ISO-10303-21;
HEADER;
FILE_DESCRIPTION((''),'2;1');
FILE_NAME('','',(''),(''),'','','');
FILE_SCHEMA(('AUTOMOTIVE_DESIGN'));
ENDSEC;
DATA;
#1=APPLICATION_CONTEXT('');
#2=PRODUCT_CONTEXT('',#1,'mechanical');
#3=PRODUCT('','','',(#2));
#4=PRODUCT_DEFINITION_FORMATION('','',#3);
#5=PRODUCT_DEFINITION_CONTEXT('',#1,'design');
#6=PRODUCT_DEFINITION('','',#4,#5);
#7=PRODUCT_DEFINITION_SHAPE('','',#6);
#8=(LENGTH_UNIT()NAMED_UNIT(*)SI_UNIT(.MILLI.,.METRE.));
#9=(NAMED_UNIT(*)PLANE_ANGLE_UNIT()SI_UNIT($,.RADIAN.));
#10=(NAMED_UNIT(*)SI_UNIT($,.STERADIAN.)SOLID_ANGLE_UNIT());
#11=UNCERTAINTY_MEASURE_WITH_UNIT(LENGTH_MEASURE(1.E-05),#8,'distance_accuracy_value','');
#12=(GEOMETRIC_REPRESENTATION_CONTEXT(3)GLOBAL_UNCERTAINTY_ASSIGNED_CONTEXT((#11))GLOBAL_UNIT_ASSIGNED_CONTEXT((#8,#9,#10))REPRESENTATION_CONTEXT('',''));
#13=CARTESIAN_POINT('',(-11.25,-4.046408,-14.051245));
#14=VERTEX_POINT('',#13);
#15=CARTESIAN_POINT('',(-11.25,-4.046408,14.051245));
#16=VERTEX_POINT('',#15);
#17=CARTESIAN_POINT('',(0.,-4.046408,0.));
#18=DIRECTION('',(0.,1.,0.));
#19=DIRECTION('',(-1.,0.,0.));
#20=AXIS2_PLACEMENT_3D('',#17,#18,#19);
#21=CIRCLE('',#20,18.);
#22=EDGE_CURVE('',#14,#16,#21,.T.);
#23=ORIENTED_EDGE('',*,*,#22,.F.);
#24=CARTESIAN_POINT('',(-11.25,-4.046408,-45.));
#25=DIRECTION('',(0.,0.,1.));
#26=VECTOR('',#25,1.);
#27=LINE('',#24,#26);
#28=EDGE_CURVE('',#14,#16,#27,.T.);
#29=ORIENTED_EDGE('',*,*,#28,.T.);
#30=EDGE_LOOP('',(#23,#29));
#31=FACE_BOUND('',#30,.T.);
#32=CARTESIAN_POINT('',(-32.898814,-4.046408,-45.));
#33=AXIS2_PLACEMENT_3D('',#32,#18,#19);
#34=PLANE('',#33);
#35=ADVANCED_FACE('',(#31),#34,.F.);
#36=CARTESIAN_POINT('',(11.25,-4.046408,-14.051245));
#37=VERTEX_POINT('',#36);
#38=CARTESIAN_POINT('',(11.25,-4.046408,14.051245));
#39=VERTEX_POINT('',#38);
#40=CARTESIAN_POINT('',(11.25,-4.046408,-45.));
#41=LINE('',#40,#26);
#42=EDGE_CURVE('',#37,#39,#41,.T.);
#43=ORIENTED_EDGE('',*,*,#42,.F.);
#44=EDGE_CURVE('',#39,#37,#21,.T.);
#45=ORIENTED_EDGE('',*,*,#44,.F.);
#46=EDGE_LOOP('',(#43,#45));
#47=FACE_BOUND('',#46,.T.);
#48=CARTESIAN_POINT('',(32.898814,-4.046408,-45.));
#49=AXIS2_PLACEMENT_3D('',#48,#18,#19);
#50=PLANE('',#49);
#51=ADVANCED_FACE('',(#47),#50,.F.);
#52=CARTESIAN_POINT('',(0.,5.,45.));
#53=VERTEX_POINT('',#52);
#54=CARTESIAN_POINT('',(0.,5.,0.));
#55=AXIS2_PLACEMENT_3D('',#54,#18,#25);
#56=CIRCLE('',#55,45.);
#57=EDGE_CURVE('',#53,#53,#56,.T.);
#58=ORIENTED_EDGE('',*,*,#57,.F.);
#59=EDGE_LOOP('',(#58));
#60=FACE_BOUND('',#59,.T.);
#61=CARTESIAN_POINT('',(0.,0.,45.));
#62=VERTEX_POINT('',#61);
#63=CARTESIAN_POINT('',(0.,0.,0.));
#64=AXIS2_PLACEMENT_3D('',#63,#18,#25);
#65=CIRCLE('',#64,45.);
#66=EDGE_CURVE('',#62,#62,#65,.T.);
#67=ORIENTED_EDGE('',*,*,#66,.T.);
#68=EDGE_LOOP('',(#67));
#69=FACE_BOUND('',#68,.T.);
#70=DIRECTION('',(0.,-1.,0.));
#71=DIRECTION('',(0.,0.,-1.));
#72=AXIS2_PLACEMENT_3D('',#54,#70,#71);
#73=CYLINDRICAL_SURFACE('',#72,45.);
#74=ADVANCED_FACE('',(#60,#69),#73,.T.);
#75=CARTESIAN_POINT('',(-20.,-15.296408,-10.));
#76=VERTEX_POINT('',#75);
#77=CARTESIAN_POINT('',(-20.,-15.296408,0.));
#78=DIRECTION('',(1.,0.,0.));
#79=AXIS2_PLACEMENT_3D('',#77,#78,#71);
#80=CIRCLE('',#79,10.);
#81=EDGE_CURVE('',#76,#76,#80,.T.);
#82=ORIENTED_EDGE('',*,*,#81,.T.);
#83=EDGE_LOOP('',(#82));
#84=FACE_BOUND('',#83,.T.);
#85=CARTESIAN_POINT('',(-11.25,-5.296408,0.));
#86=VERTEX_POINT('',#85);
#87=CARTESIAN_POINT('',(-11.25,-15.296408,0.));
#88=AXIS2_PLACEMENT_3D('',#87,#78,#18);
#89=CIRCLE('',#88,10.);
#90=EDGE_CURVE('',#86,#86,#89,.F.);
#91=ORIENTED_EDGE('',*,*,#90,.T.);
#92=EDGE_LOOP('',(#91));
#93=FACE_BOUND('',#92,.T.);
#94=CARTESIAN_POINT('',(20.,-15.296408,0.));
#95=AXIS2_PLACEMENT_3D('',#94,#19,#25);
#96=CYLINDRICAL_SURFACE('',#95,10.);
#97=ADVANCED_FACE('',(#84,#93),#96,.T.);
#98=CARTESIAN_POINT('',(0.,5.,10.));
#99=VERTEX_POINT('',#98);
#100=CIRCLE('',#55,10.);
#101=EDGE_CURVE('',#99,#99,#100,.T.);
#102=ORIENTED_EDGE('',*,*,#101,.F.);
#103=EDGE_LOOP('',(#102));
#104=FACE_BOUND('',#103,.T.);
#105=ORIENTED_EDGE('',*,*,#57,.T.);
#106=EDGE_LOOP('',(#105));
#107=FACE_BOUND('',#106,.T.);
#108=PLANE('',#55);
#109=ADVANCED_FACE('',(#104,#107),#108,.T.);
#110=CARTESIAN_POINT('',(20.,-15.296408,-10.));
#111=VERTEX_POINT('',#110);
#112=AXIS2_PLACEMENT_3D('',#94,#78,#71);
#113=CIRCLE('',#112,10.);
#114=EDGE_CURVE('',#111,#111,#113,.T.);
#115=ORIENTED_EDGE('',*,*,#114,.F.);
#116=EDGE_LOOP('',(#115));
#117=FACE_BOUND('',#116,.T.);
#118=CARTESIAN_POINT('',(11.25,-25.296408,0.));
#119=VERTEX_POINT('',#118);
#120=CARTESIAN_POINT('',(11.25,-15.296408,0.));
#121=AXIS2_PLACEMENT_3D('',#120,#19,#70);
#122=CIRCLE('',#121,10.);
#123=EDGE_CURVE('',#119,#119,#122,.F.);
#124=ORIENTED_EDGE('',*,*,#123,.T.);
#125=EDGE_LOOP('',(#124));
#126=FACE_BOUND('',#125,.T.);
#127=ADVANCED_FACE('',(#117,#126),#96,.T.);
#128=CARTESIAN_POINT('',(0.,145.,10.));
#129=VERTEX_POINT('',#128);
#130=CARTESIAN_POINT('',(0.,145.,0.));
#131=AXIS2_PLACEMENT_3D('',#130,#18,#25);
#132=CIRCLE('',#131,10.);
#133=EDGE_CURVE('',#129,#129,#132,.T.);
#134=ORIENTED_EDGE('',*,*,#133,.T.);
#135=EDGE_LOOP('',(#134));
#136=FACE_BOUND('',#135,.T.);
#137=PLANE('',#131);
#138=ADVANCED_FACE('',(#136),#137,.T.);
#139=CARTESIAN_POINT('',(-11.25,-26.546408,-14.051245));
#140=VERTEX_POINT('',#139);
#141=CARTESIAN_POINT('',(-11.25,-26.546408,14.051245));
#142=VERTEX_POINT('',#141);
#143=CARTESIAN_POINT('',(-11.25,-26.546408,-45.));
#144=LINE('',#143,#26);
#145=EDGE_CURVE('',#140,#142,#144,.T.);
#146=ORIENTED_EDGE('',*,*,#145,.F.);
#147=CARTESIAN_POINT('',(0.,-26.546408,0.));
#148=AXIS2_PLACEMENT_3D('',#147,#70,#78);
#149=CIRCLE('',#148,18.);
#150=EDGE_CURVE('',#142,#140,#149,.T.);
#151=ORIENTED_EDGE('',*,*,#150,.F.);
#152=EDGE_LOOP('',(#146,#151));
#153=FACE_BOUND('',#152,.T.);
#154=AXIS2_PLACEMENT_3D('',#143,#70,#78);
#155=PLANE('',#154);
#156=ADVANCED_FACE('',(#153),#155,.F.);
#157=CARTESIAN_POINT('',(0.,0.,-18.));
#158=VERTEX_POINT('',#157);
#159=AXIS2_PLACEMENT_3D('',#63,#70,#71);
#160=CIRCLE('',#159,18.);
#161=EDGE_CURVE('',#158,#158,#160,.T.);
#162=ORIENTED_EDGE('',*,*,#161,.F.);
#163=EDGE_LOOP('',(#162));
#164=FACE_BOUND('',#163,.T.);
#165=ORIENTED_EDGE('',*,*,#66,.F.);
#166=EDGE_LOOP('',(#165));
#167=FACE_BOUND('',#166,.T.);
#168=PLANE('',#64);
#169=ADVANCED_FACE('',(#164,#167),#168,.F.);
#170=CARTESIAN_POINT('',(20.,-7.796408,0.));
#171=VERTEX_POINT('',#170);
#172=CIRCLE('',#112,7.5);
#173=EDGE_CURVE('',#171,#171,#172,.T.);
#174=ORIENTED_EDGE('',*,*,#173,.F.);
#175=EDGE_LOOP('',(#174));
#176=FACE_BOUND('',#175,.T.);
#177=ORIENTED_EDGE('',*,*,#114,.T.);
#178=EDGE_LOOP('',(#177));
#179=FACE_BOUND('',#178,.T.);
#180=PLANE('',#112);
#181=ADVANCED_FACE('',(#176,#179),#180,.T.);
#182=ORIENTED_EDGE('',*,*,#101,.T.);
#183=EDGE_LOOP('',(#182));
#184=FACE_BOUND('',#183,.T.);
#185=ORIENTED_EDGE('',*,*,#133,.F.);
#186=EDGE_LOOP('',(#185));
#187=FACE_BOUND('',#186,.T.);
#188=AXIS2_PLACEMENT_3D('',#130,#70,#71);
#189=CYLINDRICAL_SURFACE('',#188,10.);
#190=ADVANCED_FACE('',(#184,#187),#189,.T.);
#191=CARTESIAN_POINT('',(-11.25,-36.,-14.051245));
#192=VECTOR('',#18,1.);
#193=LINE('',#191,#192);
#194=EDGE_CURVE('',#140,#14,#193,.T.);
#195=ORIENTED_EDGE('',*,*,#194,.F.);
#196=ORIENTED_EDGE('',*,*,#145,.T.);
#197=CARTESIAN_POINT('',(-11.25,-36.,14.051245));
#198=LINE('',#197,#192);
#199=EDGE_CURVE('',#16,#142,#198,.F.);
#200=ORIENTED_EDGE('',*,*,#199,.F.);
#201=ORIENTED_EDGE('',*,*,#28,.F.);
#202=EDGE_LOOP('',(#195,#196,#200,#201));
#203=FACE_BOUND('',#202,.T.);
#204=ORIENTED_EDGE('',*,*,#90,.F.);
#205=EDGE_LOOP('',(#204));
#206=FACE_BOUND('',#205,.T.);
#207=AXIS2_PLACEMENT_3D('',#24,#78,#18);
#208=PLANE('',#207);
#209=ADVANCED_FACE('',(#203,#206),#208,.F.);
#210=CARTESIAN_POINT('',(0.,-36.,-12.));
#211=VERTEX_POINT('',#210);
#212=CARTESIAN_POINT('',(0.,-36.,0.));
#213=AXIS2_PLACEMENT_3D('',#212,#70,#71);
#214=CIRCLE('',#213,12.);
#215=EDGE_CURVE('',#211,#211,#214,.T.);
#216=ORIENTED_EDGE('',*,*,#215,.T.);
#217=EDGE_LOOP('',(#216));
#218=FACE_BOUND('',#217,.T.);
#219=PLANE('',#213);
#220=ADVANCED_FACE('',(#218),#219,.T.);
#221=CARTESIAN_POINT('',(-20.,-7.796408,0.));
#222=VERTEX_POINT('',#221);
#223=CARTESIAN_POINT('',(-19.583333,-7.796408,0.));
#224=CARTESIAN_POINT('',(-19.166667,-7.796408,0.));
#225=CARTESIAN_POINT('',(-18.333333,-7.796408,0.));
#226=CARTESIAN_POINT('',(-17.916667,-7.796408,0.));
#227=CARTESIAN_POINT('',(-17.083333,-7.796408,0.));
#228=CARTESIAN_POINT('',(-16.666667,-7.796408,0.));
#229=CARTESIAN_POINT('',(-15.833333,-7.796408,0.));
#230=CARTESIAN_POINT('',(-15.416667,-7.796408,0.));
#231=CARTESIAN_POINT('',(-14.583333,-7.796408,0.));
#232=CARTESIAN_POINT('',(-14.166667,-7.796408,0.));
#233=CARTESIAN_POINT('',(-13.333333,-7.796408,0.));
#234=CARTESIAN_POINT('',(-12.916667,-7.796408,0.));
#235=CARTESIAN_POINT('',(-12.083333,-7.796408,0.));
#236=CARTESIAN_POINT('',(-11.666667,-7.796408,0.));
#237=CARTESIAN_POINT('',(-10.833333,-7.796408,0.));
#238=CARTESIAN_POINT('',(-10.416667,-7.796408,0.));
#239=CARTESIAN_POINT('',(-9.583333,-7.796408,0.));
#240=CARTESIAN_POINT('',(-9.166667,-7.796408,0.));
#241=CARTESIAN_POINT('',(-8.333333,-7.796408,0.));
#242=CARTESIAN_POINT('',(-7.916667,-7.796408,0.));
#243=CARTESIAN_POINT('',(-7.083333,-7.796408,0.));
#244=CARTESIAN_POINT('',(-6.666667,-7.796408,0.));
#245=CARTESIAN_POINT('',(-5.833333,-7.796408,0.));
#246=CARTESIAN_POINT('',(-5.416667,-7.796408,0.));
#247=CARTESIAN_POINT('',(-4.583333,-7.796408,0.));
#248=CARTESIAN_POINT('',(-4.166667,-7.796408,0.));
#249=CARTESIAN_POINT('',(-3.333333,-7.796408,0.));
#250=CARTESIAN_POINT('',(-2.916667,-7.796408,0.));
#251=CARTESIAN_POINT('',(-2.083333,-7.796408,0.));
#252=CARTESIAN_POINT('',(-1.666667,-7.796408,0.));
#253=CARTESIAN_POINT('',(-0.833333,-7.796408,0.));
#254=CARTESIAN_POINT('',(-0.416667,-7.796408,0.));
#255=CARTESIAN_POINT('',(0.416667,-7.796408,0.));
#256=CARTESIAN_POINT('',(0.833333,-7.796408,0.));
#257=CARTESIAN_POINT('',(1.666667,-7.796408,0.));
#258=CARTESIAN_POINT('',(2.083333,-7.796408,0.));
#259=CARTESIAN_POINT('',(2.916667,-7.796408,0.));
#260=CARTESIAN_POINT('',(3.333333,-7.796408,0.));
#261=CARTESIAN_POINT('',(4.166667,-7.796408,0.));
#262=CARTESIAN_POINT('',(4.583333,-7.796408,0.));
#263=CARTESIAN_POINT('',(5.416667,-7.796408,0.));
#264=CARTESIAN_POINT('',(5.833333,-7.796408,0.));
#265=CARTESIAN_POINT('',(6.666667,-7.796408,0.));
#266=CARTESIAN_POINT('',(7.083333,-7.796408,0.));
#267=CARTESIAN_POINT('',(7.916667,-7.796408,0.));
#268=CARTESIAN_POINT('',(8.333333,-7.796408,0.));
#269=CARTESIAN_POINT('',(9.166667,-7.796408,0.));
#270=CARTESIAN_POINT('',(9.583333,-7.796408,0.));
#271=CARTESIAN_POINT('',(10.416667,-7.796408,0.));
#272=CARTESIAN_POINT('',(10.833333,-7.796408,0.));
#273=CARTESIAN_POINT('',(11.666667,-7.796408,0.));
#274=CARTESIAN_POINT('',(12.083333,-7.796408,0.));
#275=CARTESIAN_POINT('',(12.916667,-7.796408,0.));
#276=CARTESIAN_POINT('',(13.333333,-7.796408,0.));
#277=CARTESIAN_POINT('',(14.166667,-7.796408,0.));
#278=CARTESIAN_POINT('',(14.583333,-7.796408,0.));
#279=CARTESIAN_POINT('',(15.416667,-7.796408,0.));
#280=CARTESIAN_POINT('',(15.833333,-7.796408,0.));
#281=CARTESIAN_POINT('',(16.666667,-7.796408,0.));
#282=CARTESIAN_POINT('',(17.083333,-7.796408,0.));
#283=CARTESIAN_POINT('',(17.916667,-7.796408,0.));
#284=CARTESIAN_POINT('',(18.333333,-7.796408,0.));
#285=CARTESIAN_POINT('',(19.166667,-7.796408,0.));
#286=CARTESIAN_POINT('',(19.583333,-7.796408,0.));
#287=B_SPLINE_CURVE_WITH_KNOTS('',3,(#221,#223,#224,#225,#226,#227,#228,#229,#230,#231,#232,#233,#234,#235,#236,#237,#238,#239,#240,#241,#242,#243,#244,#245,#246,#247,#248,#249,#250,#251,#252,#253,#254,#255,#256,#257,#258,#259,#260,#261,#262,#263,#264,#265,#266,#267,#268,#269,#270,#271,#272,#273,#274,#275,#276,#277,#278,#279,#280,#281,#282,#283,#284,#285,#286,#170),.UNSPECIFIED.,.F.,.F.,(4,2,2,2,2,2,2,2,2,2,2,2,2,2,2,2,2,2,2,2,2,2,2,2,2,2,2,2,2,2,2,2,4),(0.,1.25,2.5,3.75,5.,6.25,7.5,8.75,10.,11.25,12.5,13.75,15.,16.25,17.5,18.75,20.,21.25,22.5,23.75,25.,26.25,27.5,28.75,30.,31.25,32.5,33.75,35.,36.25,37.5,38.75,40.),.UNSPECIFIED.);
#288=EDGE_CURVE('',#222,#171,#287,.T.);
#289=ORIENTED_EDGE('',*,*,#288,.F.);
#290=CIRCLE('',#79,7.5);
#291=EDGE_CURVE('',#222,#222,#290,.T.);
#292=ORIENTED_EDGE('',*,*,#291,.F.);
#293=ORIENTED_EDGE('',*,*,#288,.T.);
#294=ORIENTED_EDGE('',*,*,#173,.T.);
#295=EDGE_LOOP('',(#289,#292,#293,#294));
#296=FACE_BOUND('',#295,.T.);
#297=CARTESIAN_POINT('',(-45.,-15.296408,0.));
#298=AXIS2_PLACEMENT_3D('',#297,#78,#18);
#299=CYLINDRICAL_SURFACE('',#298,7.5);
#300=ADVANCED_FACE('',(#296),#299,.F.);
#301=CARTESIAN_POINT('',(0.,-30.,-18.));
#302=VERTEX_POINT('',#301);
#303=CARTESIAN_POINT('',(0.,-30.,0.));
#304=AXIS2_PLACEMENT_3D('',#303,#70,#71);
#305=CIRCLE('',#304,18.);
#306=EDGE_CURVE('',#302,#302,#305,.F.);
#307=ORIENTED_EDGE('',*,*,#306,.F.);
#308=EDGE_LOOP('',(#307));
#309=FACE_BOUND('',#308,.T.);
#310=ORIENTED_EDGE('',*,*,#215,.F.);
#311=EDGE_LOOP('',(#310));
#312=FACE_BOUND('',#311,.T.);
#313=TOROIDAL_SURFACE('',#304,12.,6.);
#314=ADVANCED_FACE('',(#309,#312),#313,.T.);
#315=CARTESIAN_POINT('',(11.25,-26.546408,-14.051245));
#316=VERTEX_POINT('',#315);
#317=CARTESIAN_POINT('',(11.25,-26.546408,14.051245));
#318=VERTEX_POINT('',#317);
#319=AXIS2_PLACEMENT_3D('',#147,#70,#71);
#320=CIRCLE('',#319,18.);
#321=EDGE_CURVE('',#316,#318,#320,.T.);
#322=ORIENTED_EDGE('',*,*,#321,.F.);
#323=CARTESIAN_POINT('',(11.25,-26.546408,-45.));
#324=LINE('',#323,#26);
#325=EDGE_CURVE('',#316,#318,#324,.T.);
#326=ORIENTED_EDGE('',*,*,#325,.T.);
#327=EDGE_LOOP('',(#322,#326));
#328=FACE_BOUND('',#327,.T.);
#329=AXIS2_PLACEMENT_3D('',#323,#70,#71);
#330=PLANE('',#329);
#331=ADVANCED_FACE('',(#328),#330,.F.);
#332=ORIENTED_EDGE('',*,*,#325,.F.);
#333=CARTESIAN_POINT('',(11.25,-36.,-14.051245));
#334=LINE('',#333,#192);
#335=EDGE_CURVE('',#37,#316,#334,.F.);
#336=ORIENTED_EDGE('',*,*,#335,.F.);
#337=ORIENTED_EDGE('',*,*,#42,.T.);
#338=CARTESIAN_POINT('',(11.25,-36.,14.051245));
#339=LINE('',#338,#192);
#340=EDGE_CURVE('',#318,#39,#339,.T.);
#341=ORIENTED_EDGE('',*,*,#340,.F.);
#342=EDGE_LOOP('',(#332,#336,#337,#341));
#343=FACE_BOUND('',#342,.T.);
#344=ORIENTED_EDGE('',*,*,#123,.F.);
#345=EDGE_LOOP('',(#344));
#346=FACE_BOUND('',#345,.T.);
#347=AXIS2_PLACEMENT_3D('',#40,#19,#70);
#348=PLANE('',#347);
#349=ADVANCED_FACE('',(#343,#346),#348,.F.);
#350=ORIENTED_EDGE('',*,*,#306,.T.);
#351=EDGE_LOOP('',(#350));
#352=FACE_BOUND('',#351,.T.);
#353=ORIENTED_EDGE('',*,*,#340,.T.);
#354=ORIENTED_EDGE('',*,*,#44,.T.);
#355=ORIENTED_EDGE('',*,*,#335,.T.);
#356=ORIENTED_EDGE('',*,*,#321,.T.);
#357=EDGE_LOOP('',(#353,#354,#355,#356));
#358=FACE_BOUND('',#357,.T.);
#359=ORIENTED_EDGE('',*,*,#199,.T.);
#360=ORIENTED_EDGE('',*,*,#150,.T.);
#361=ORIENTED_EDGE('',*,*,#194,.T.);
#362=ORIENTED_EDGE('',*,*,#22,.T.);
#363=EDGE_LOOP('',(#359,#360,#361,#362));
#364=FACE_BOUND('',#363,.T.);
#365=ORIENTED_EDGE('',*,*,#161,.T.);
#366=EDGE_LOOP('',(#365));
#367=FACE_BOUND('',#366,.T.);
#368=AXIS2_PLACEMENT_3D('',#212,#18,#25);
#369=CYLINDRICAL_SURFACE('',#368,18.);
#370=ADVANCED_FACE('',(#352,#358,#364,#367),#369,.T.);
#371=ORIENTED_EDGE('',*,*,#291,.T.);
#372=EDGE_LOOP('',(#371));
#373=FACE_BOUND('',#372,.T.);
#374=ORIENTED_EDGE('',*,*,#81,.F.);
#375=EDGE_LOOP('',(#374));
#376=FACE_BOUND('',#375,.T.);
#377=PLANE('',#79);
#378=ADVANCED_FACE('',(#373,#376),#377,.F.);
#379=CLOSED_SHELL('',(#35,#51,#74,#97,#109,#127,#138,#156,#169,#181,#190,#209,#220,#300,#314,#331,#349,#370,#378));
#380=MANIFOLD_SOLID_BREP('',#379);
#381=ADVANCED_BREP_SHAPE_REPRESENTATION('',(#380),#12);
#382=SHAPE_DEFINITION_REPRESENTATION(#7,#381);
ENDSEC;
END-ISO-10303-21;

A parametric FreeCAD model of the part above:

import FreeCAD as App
import Part
import Sketcher
from FreeCAD import Vector


def edges_at(feature, points):
    """Names of the edges that pass closest to the given points."""
    edges = feature.Shape.Edges
    near = lambda p: min(range(len(edges)), key=lambda i: edges[i].distToShape(Part.Vertex(*p))[0])
    return sorted({f"Edge{near(p) + 1}" for p in points})


def add_polygon(sketch, points):
    """Adds a closed chain of lines whose ends are joined by coincident constraints."""
    first, n = sketch.GeometryCount, len(points)
    for a, b in zip(points, points[1:] + points[:1]):
        sketch.addGeometry(Part.LineSegment(App.Vector(*a, 0), App.Vector(*b, 0)), False)
    for i in range(n):
        sketch.addConstraint(Sketcher.Constraint("Coincident", first + i, 2, first + (i + 1) % n, 1))

doc = App.newDocument("Part")
body = doc.addObject("PartDesign::Body", "Body")

sketch1 = doc.addObject("Sketcher::SketchObject", "Sketch")
body.addObject(sketch1)
sketch1.AttachmentSupport = (doc.XZ_Plane, [""])
sketch1.MapMode = "FlatFace"
sketch1.addGeometry(Part.Circle(Vector(0, 0, 0), Vector(0, 0, 1), 45), False)
sketch1.addConstraint([
    Sketcher.Constraint("Coincident", 0, 3, -1, 1),
    Sketcher.Constraint("Diameter", 0, 90.0),
])
pad1 = doc.addObject("PartDesign::Pad", "Pad")
body.addObject(pad1)
pad1.Profile = sketch1
pad1.Length = 5
pad1.Reversed = True

sketch2 = doc.addObject("Sketcher::SketchObject", "Sketch001")
body.addObject(sketch2)
sketch2.AttachmentSupport = (doc.XZ_Plane, [""])
sketch2.MapMode = "FlatFace"
sketch2.AttachmentOffset = App.Placement(Vector(0, 0, -5), App.Rotation())
sketch2.addGeometry(Part.Circle(Vector(0, 0, 0), Vector(0, 0, 1), 10), False)
sketch2.addConstraint([
    Sketcher.Constraint("Coincident", 0, 3, -1, 1),
    Sketcher.Constraint("Diameter", 0, 20.0),
])
pad2 = doc.addObject("PartDesign::Pad", "Pad001")
body.addObject(pad2)
pad2.Profile = sketch2
pad2.Length = 140
pad2.Reversed = True

sketch3 = doc.addObject("Sketcher::SketchObject", "Sketch002")
body.addObject(sketch3)
sketch3.AttachmentSupport = (doc.XZ_Plane, [""])
sketch3.MapMode = "FlatFace"
sketch3.addGeometry(Part.Circle(Vector(0, 0, 0), Vector(0, 0, 1), 18), False)
sketch3.addConstraint([
    Sketcher.Constraint("Coincident", 0, 3, -1, 1),
    Sketcher.Constraint("Diameter", 0, 36.0),
])
pad3 = doc.addObject("PartDesign::Pad", "Pad002")
body.addObject(pad3)
pad3.Profile = sketch3
pad3.Length = 36
doc.recompute()

fillet = doc.addObject("PartDesign::Fillet", "Fillet")
body.addObject(fillet)
fillet.Base = (pad3, edges_at(pad3, [(0, -36, 18)]))
fillet.Radius = 6

sketch4 = doc.addObject("Sketcher::SketchObject", "Sketch003")
body.addObject(sketch4)
sketch4.AttachmentSupport = (doc.XY_Plane, [""])
sketch4.MapMode = "FlatFace"
add_polygon(sketch4, [(11, -4), (11, -27), (33, -27), (33, -4)])
add_polygon(sketch4, [(-33, -4), (-33, -27), (-11, -27), (-11, -4)])
sketch4.addConstraint([
    Sketcher.Constraint("Vertical", 0),
    Sketcher.Constraint("Horizontal", 1),
    Sketcher.Constraint("Vertical", 2),
    Sketcher.Constraint("Horizontal", 3),
    Sketcher.Constraint("Vertical", 4),
    Sketcher.Constraint("Horizontal", 5),
    Sketcher.Constraint("Vertical", 6),
    Sketcher.Constraint("Horizontal", 7),
    Sketcher.Constraint("Symmetric", 1, 2, 4, 2, -2),
    Sketcher.Constraint("Symmetric", 3, 2, 6, 2, -2),
    Sketcher.Constraint("DistanceY", 0, 2, 0, 1, 22.5),
    Sketcher.Constraint("DistanceX", 5, 2, 0, 2, 22.5),
    Sketcher.Constraint("DistanceX", 1, 1, 1, 2, 21.648814),
    Sketcher.Constraint("DistanceY", 0, 2, -1, 1, 26.546408),
])
pocket1 = doc.addObject("PartDesign::Pocket", "Pocket")
body.addObject(pocket1)
pocket1.Profile = sketch4
pocket1.Type = "ThroughAll"
pocket1.Midplane = True

sketch5 = doc.addObject("Sketcher::SketchObject", "Sketch004")
body.addObject(sketch5)
sketch5.AttachmentSupport = (doc.YZ_Plane, [""])
sketch5.MapMode = "FlatFace"
sketch5.AttachmentOffset = App.Placement(Vector(0, 0, 11.25), App.Rotation())
sketch5.addGeometry(Part.Circle(Vector(-15, 0, 0), Vector(0, 0, 1), 8), False)
sketch5.addConstraint([
    Sketcher.Constraint("PointOnObject", 0, 3, -1),
    Sketcher.Constraint("Diameter", 0, 15.0),
    Sketcher.Constraint("DistanceX", 0, 3, -1, 1, 15.296408),
])
pocket2 = doc.addObject("PartDesign::Pocket", "Pocket001")
body.addObject(pocket2)
pocket2.Profile = sketch5
pocket2.Type = "ThroughAll"

sketch6 = doc.addObject("Sketcher::SketchObject", "Sketch005")
body.addObject(sketch6)
sketch6.AttachmentSupport = (doc.YZ_Plane, [""])
sketch6.MapMode = "FlatFace"
sketch6.addGeometry([
    Part.Circle(Vector(-15, 0, 0), Vector(0, 0, 1), 10),
    Part.Circle(Vector(-15, 0, 0), Vector(0, 0, 1), 8),
], False)
sketch6.addConstraint([
    Sketcher.Constraint("Coincident", 1, 3, 0, 3),
    Sketcher.Constraint("PointOnObject", 0, 3, -1),
    Sketcher.Constraint("Diameter", 0, 20.0),
    Sketcher.Constraint("Diameter", 1, 15.0),
    Sketcher.Constraint("DistanceX", 0, 3, -1, 1, 15.296408),
])
pad4 = doc.addObject("PartDesign::Pad", "Pad003")
body.addObject(pad4)
pad4.Profile = sketch6
pad4.Length = 40
pad4.Midplane = True

doc.recompute()
